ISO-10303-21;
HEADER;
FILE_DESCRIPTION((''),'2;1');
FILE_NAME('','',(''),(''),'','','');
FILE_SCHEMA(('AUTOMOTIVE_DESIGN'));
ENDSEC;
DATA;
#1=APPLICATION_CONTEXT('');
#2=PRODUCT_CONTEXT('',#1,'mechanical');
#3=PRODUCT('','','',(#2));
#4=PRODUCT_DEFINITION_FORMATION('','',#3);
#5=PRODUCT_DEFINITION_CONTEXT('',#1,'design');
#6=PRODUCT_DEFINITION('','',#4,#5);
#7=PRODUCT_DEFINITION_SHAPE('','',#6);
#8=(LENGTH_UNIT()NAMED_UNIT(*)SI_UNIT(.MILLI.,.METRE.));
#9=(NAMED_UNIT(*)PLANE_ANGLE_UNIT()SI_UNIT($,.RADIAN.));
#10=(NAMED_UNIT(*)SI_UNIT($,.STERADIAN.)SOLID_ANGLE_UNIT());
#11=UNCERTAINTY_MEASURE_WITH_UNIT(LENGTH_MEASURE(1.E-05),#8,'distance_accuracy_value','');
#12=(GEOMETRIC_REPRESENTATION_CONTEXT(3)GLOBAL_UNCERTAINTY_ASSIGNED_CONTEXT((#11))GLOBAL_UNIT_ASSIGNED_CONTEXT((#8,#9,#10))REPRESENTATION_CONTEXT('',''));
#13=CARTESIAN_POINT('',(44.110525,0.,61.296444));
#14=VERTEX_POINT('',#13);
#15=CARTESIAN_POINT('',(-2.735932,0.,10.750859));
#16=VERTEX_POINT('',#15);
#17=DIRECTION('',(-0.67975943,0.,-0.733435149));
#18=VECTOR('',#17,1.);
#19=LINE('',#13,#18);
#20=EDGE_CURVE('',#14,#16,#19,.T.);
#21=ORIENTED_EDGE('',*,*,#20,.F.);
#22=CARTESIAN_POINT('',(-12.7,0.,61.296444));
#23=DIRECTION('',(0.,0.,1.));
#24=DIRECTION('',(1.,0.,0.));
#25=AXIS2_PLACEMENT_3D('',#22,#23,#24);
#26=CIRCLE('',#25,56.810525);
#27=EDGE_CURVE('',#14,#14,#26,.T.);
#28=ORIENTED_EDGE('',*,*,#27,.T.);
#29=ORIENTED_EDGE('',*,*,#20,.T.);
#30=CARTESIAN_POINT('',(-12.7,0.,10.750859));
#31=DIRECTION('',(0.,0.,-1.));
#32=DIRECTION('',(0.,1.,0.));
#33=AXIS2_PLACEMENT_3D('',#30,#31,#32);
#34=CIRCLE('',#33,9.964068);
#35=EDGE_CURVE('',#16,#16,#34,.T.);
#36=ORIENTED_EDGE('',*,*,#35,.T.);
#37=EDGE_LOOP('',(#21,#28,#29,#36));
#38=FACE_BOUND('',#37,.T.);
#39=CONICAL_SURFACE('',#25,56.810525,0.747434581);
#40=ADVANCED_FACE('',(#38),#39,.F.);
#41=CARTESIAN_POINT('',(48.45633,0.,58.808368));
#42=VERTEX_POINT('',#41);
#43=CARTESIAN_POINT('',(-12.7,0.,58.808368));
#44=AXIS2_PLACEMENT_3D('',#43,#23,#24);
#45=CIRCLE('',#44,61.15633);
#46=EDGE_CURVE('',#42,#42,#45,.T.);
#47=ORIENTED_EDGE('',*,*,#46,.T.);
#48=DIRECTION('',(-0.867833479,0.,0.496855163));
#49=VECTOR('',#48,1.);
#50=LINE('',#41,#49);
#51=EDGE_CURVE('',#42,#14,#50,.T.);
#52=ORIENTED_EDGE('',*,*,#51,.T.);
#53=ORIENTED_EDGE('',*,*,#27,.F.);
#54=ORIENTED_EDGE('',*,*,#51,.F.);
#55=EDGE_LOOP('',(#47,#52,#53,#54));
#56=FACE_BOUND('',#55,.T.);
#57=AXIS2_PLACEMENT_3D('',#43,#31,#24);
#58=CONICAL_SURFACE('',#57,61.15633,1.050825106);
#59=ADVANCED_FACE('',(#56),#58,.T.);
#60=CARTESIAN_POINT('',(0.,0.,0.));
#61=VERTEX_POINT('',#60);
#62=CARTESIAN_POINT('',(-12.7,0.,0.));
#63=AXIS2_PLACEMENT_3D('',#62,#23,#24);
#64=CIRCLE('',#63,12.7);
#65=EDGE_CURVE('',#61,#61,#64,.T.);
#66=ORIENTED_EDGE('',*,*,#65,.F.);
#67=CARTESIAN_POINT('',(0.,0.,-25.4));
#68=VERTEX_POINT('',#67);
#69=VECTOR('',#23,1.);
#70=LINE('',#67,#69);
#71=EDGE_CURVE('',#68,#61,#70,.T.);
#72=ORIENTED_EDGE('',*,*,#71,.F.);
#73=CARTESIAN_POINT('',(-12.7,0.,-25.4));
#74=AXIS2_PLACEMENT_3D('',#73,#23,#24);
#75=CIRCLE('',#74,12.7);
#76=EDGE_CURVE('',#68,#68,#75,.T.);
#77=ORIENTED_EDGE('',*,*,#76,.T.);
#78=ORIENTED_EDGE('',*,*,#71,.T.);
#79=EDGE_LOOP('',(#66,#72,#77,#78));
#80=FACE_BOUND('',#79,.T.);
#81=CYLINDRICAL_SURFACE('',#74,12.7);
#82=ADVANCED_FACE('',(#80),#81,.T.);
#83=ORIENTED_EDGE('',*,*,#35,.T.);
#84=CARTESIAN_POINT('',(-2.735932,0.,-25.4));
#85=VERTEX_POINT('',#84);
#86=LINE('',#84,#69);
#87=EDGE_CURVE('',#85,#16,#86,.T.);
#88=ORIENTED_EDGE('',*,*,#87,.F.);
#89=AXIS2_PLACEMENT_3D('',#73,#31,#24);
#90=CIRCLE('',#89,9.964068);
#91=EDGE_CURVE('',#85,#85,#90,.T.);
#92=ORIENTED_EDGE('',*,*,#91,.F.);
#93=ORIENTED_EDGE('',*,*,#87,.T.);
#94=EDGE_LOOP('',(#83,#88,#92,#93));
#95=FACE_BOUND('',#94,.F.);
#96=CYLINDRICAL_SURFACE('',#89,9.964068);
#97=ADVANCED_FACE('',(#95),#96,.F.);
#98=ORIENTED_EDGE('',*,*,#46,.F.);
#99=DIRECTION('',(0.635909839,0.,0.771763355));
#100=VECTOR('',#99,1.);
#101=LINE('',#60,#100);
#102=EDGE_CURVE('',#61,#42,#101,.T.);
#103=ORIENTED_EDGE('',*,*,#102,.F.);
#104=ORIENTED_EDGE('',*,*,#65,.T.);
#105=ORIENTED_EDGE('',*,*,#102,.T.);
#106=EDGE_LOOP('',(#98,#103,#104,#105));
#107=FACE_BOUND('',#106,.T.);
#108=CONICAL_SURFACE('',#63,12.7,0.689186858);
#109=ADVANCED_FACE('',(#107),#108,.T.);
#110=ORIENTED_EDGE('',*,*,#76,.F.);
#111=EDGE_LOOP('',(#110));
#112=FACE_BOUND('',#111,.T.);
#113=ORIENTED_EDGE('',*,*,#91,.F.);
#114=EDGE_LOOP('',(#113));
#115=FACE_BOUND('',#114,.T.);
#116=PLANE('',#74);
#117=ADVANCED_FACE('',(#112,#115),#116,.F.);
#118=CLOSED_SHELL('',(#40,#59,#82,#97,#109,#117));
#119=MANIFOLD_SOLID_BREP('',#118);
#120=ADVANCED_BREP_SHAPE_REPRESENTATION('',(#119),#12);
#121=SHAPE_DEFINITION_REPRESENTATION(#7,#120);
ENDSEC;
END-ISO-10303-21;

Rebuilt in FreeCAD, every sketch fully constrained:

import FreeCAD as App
import Part
import Sketcher

V = App.Vector
Q = App.Units.Quantity


def add_polygon(sketch, points):
    """Adds a closed chain of lines whose ends are joined by coincident constraints."""
    first, n = sketch.GeometryCount, len(points)
    for a, b in zip(points, points[1:] + points[:1]):
        sketch.addGeometry(Part.LineSegment(App.Vector(*a, 0), App.Vector(*b, 0)), False)
    for i in range(n):
        sketch.addConstraint(Sketcher.Constraint("Coincident", first + i, 2, first + (i + 1) % n, 1))

doc = App.newDocument("Part")
params = doc.addObject("Spreadsheet::Sheet", "Params")
for row, (alias, value) in enumerate([
    ("sketch1_height", "1 in"),
    ("sketch1_length", "3 in"),
    ("sketch1_width", "0.5 in"),
    ("revolution_angle", "360 deg"),
    ("pocket1_length", "2 in"),
], start=1):
    params.set(f"A{row}", alias)
    params.set(f"B{row}", "=" + value)
    params.setAlias(f"B{row}", alias)

body = doc.addObject("PartDesign::Body", "Body")

# Sketch on XZ plane
sketch1 = body.newObject("Sketcher::SketchObject", "Sketch")
sketch1.AttachmentSupport = (doc.getObject("XZ_Plane"), [""])
sketch1.MapMode = "FlatFace"
add_polygon(sketch1, [(0, 0), (48.45633, 58.808368), (44.110525, 61.296444), (-12.7, 0), (-12.7, -25.4), (0, -25.4)])  # lines 0-5
sketch1.addGeometry(Part.LineSegment(V(-12.7, -25.4, 0), V(-12.7, 61.296444, 0)), True)  # axis
sketch1.addConstraint([
    Sketcher.Constraint("Vertical", 3),
    Sketcher.Constraint("Horizontal", 4),
    Sketcher.Constraint("Vertical", 5),
    Sketcher.Constraint("Vertical", 6),
    Sketcher.Constraint("Coincident", 5, 2, -1, 1),
    Sketcher.Constraint("Coincident", 6, 1, 3, 2),
    Sketcher.Constraint("PointOnObject", 2, 2, -1),
    Sketcher.Constraint("Horizontal", 1, 2, 6, 2),
    Sketcher.Constraint("DistanceY", 3, 2, 3, 1, Q("1 in")),
    Sketcher.Constraint("Distance", 0, Q("3 in")),
    Sketcher.Constraint("DistanceX", 4, 1, 4, 2, Q("0.5 in")),
    Sketcher.Constraint("Distance", 1, 5.007648),
    Sketcher.Constraint("DistanceY", 6, 1, 6, 2, 86.696444),
    Sketcher.Constraint("DistanceX", -1, 1, 0, 2, 48.45633),
])
sketch1.setExpression("Constraints[14]", "Params.sketch1_height")
sketch1.setExpression("Constraints[15]", "Params.sketch1_length")
sketch1.setExpression("Constraints[16]", "Params.sketch1_width")
revolution = body.newObject("PartDesign::Revolution", "Revolution")
revolution.Profile = sketch1
revolution.ReferenceAxis = (sketch1, ["Axis0"])
revolution.setExpression("Angle", "Params.revolution_angle")

# Sketch on XY plane
sketch2 = body.newObject("Sketcher::SketchObject", "Sketch001")
sketch2.AttachmentSupport = (doc.getObject("XY_Plane"), [""])
sketch2.MapMode = "FlatFace"
sketch2.AttachmentOffset = App.Placement(V(0, 0, -1 * 25.4), App.Rotation())
sketch2.addGeometry(Part.Circle(V(-12.7, 0, 0), V(0, 0, 1), 9.964068), False)
sketch2.addConstraint([
    Sketcher.Constraint("PointOnObject", 0, 3, -1),
    Sketcher.Constraint("DistanceX", 0, 3, -1, 1, Q("0.5 in")),
    Sketcher.Constraint("Diameter", 0, 19.928136),
])
pocket1 = body.newObject("PartDesign::Pocket", "Pocket")
pocket1.Profile = sketch2
pocket1.setExpression("Length", "Params.pocket1_length")
pocket1.Reversed = True

doc.recompute()
